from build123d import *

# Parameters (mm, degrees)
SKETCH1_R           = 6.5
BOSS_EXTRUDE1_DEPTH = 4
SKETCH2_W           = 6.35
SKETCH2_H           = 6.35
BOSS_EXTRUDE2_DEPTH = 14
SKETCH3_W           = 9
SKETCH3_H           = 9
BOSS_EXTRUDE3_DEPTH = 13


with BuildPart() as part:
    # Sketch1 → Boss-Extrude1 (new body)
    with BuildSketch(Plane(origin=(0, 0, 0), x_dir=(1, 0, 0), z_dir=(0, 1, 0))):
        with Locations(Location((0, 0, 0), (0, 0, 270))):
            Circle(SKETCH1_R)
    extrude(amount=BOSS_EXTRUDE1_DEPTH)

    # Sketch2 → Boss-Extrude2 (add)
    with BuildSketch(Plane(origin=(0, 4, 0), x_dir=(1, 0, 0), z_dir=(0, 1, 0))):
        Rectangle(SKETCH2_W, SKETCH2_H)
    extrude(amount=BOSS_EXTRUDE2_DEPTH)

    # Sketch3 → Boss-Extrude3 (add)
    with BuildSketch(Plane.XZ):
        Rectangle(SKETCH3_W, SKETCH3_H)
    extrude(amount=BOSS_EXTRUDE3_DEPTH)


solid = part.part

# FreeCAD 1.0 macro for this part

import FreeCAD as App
import Part
import Sketcher


def add_polygon(sketch, points):
    """Adds a closed chain of lines whose ends are joined by coincident constraints."""
    first, n = sketch.GeometryCount, len(points)
    for a, b in zip(points, points[1:] + points[:1]):
        sketch.addGeometry(Part.LineSegment(App.Vector(*a, 0), App.Vector(*b, 0)), False)
    for i in range(n):
        sketch.addConstraint(Sketcher.Constraint("Coincident", first + i, 2, first + (i + 1) % n, 1))

doc = App.newDocument("Part")
params = doc.addObject("Spreadsheet::Sheet", "Params")
for row, (alias, value) in enumerate([
    ("sketch1_diameter", "13 mm"),
    ("pad1_length", "4 mm"),
    ("sketch2_width", "6.35 mm"),
    ("pad2_length", "14 mm"),
    ("sketch3_width", "9 mm"),
    ("pad3_length", "13 mm"),
], start=1):
    params.set(f"A{row}", alias)
    params.set(f"B{row}", "=" + value)
    params.setAlias(f"B{row}", alias)

body = doc.addObject("PartDesign::Body", "Body")

sketch1 = body.newObject("Sketcher::SketchObject", "Sketch")
sketch1.AttachmentSupport = (doc.getObject("XZ_Plane"), [""])
sketch1.MapMode = "FlatFace"
sketch1.addGeometry(Part.Circle(App.Vector(0, 0, 0), App.Vector(0, 0, 1), 6), False)
sketch1.addConstraint(Sketcher.Constraint("Coincident", 0, 3, -1, 1))
sketch1.addConstraint(Sketcher.Constraint("Diameter", 0, 13.0))
sketch1.setExpression("Constraints[1]", "Params.sketch1_diameter")
pad1 = body.newObject("PartDesign::Pad", "Pad")
pad1.Profile = sketch1
pad1.setExpression("Length", "Params.pad1_length")
pad1.Reversed = True

sketch2 = body.newObject("Sketcher::SketchObject", "Sketch001")
sketch2.AttachmentSupport = (doc.getObject("XZ_Plane"), [""])
sketch2.MapMode = "FlatFace"
sketch2.AttachmentOffset = App.Placement(App.Vector(0, 0, -4), App.Rotation())
add_polygon(sketch2, [(-3, -3), (-3, 3), (3, 3), (3, -3)])
sketch2.addConstraint(Sketcher.Constraint("Vertical", 0))
sketch2.addConstraint(Sketcher.Constraint("Horizontal", 1))
sketch2.addConstraint(Sketcher.Constraint("Vertical", 2))
sketch2.addConstraint(Sketcher.Constraint("Horizontal", 3))
sketch2.addConstraint(Sketcher.Constraint("Symmetric", 0, 2, 2, 2, -1, 1))
sketch2.addConstraint(Sketcher.Constraint("Equal", 3, 0))
sketch2.addConstraint(Sketcher.Constraint("DistanceX", 1, 1, 1, 2, 6.35))
sketch2.setExpression("Constraints[10]", "Params.sketch2_width")
pad2 = body.newObject("PartDesign::Pad", "Pad001")
pad2.Profile = sketch2
pad2.setExpression("Length", "Params.pad2_length")
pad2.Reversed = True

sketch3 = body.newObject("Sketcher::SketchObject", "Sketch002")
sketch3.AttachmentSupport = (doc.getObject("XZ_Plane"), [""])
sketch3.MapMode = "FlatFace"
add_polygon(sketch3, [(-4, 4), (-4, -4), (4, -4), (4, 4)])
sketch3.addConstraint(Sketcher.Constraint("Vertical", 0))
sketch3.addConstraint(Sketcher.Constraint("Horizontal", 1))
sketch3.addConstraint(Sketcher.Constraint("Vertical", 2))
sketch3.addConstraint(Sketcher.Constraint("Horizontal", 3))
sketch3.addConstraint(Sketcher.Constraint("Symmetric", 0, 2, 2, 2, -1, 1))
sketch3.addConstraint(Sketcher.Constraint("Equal", 3, 0))
sketch3.addConstraint(Sketcher.Constraint("DistanceX", 1, 1, 1, 2, 9.0))
sketch3.setExpression("Constraints[10]", "Params.sketch3_width")
pad3 = body.newObject("PartDesign::Pad", "Pad002")
pad3.Profile = sketch3
pad3.setExpression("Length", "Params.pad3_length")

doc.recompute()
